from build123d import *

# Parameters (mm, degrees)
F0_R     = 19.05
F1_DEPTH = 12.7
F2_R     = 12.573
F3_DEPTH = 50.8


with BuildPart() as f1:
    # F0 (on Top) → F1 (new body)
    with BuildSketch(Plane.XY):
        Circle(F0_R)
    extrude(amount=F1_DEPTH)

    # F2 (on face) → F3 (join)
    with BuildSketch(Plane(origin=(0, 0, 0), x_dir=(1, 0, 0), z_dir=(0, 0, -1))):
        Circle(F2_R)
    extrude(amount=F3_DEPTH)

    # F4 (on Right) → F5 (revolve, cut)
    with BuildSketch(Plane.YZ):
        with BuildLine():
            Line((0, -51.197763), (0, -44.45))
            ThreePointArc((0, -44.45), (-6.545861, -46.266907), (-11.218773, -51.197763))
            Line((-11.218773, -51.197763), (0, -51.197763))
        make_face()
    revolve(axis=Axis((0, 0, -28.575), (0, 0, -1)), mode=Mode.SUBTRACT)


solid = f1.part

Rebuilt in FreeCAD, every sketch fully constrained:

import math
import FreeCAD as App
import Part
import Sketcher
from FreeCAD import Vector
Q = App.Units.Quantity

doc = App.newDocument("Part")
body = doc.addObject("PartDesign::Body", "Body")

sketch1 = body.newObject("Sketcher::SketchObject", "Sketch")
sketch1.AttachmentSupport = (doc.getObject("XY_Plane"), [""])
sketch1.MapMode = "FlatFace"
sketch1.addGeometry(Part.Circle(Vector(0, 0, 0), Vector(0, 0, 1), 19), False)
sketch1.addConstraint(Sketcher.Constraint("Coincident", 0, 3, -1, 1))
sketch1.addConstraint(Sketcher.Constraint("Diameter", 0, Q("1.5 in")))
pad1 = body.newObject("PartDesign::Pad", "Pad")
pad1.Profile = sketch1
pad1.Length = Q("0.5 in")

sketch2 = body.newObject("Sketcher::SketchObject", "Sketch001")
sketch2.AttachmentSupport = (doc.getObject("XY_Plane"), [""])
sketch2.MapMode = "FlatFace"
sketch2.addGeometry(Part.Circle(Vector(0, 0, 0), Vector(0, 0, 1), 13), False)
sketch2.addConstraint(Sketcher.Constraint("Coincident", 0, 3, -1, 1))
sketch2.addConstraint(Sketcher.Constraint("Diameter", 0, Q("0.99 in")))
pad2 = body.newObject("PartDesign::Pad", "Pad001")
pad2.Profile = sketch2
pad2.Length = Q("2 in")
pad2.Reversed = True

sketch3 = body.newObject("Sketcher::SketchObject", "Sketch002")
sketch3.AttachmentSupport = (doc.getObject("YZ_Plane"), [""])
sketch3.MapMode = "FlatFace"
sketch3.addGeometry(Part.LineSegment(Vector(0, -51, 0), Vector(0, -44, 0)), False)
sketch3.addGeometry(Part.ArcOfCircle(Part.Circle(Vector(0, -57, 0), Vector(0, 0, 1), 13), math.radians(90), math.radians(152)), False)
sketch3.addGeometry(Part.LineSegment(Vector(-11, -51, 0), Vector(0, -51, 0)), False)
sketch3.addConstraint(Sketcher.Constraint("Coincident", 0, 2, 1, 1))
sketch3.addConstraint(Sketcher.Constraint("Coincident", 1, 2, 2, 1))
sketch3.addConstraint(Sketcher.Constraint("Coincident", 2, 2, 0, 1))
sketch3.addConstraint(Sketcher.Constraint("Vertical", 0))
sketch3.addConstraint(Sketcher.Constraint("Horizontal", 2))
sketch3.addConstraint(Sketcher.Constraint("PointOnObject", 1, 3, -2))
sketch3.addConstraint(Sketcher.Constraint("PointOnObject", 0, 2, -2))
sketch3.addConstraint(Sketcher.Constraint("Radius", 1, Q("0.4999999 in")))
sketch3.addConstraint(Sketcher.Constraint("DistanceY", 1, 3, -1, 1, Q("2.2499999 in")))
sketch3.addConstraint(Sketcher.Constraint("DistanceX", 2, 1, 2, 2, Q("11.218773 mm")))
groove = body.newObject("PartDesign::Groove", "Groove")
groove.Profile = sketch3
groove.ReferenceAxis = (sketch3, ["V_Axis"])
groove.Angle = 360

doc.recompute()
